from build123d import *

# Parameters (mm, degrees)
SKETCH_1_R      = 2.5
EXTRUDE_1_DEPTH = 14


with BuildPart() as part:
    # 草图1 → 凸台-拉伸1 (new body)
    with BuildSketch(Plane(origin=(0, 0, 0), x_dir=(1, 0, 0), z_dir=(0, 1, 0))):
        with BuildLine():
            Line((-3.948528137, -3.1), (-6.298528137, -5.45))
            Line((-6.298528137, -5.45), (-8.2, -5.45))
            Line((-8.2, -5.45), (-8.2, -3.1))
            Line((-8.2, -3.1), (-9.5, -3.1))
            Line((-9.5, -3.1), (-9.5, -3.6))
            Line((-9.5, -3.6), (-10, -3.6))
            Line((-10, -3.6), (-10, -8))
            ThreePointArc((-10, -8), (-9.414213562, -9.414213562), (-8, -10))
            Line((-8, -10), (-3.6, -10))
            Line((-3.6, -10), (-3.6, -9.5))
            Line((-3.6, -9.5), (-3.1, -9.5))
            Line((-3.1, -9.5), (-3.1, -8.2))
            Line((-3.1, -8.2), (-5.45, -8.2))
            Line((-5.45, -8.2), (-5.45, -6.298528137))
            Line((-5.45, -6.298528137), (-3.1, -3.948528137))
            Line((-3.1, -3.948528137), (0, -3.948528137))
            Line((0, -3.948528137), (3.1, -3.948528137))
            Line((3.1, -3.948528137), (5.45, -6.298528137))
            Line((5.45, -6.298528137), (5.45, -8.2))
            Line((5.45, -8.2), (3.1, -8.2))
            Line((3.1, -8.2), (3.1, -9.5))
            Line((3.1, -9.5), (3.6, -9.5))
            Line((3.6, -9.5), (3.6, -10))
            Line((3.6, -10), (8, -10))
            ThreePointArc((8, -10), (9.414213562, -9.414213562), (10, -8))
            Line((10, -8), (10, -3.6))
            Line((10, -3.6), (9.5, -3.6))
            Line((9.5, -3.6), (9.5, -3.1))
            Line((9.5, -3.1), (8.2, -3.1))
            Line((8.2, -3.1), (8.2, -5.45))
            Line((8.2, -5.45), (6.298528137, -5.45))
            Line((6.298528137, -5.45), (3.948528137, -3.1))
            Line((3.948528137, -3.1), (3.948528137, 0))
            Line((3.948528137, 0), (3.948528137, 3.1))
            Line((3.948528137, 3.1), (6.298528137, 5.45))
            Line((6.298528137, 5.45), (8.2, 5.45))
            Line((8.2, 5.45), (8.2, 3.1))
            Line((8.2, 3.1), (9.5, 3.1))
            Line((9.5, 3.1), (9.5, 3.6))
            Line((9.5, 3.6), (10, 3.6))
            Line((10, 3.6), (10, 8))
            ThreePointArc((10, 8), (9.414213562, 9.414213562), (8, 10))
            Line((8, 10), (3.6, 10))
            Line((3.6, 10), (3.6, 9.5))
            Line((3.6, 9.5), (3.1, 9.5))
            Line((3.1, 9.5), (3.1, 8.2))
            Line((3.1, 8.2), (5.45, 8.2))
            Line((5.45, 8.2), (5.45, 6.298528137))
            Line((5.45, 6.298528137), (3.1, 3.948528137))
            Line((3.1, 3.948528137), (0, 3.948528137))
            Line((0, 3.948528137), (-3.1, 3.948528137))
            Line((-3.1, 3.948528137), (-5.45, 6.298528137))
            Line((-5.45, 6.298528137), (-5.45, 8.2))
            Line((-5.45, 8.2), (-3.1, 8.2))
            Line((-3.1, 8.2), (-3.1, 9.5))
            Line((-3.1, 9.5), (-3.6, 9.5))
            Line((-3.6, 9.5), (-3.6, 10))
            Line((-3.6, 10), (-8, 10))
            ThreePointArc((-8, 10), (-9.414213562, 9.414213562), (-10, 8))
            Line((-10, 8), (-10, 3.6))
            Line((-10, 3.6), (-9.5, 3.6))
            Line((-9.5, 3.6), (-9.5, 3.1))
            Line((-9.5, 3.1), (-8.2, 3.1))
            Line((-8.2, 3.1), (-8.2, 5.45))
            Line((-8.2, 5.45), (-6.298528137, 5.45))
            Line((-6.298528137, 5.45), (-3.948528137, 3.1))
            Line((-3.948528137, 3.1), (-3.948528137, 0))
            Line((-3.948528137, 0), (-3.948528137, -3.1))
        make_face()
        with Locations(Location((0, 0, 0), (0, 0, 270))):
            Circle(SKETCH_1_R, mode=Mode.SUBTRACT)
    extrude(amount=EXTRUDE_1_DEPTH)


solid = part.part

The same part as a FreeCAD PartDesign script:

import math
import FreeCAD as App
import Part
import Sketcher

V = App.Vector
Q = App.Units.Quantity

doc = App.newDocument("Part")
body = doc.addObject("PartDesign::Body", "Body")

sketch1 = doc.addObject("Sketcher::SketchObject", "Sketch")
body.addObject(sketch1)
sketch1.AttachmentSupport = (doc.XZ_Plane, [""])
sketch1.MapMode = "FlatFace"
sketch1.addGeometry([
    Part.LineSegment(V(-3.9, 3.1, 0), V(-6.3, 5.5, 0)),
    Part.LineSegment(V(-6.3, 5.5, 0), V(-8.2, 5.5, 0)),
    Part.LineSegment(V(-8.2, 5.5, 0), V(-8.2, 3.1, 0)),
    Part.LineSegment(V(-8.2, 3.1, 0), V(-9.5, 3.1, 0)),
    Part.LineSegment(V(-9.5, 3.1, 0), V(-9.5, 3.6, 0)),
    Part.LineSegment(V(-9.5, 3.6, 0), V(-10, 3.6, 0)),
    Part.LineSegment(V(-10, 3.6, 0), V(-10, 8, 0)),
    Part.ArcOfCircle(Part.Circle(V(-8, 8, 0), V(0, 0, 1), 2), math.radians(90), math.radians(180)),
    Part.LineSegment(V(-8, 10, 0), V(-3.6, 10, 0)),
    Part.LineSegment(V(-3.6, 10, 0), V(-3.6, 9.5, 0)),
    Part.LineSegment(V(-3.6, 9.5, 0), V(-3.1, 9.5, 0)),
    Part.LineSegment(V(-3.1, 9.5, 0), V(-3.1, 8.2, 0)),
    Part.LineSegment(V(-3.1, 8.2, 0), V(-5.5, 8.2, 0)),
    Part.LineSegment(V(-5.5, 8.2, 0), V(-5.5, 6.3, 0)),
    Part.LineSegment(V(-5.5, 6.3, 0), V(-3.1, 3.9, 0)),
    Part.LineSegment(V(-3.1, 3.9, 0), V(3.1, 3.9, 0)),
    Part.LineSegment(V(3.1, 3.9, 0), V(5.5, 6.3, 0)),
    Part.LineSegment(V(5.5, 6.3, 0), V(5.5, 8.2, 0)),
    Part.LineSegment(V(5.5, 8.2, 0), V(3.1, 8.2, 0)),
    Part.LineSegment(V(3.1, 8.2, 0), V(3.1, 9.5, 0)),
    Part.LineSegment(V(3.1, 9.5, 0), V(3.6, 9.5, 0)),
    Part.LineSegment(V(3.6, 9.5, 0), V(3.6, 10, 0)),
    Part.LineSegment(V(3.6, 10, 0), V(8, 10, 0)),
    Part.ArcOfCircle(Part.Circle(V(8, 8, 0), V(0, 0, 1), 2), math.radians(0), math.radians(90)),
    Part.LineSegment(V(10, 8, 0), V(10, 3.6, 0)),
    Part.LineSegment(V(10, 3.6, 0), V(9.5, 3.6, 0)),
    Part.LineSegment(V(9.5, 3.6, 0), V(9.5, 3.1, 0)),
    Part.LineSegment(V(9.5, 3.1, 0), V(8.2, 3.1, 0)),
    Part.LineSegment(V(8.2, 3.1, 0), V(8.2, 5.5, 0)),
    Part.LineSegment(V(8.2, 5.5, 0), V(6.3, 5.5, 0)),
    Part.LineSegment(V(6.3, 5.5, 0), V(3.9, 3.1, 0)),
    Part.LineSegment(V(3.9, 3.1, 0), V(3.9, -3.1, 0)),
    Part.LineSegment(V(3.9, -3.1, 0), V(6.3, -5.5, 0)),
    Part.LineSegment(V(6.3, -5.5, 0), V(8.2, -5.5, 0)),
    Part.LineSegment(V(8.2, -5.5, 0), V(8.2, -3.1, 0)),
    Part.LineSegment(V(8.2, -3.1, 0), V(9.5, -3.1, 0)),
    Part.LineSegment(V(9.5, -3.1, 0), V(9.5, -3.6, 0)),
    Part.LineSegment(V(9.5, -3.6, 0), V(10, -3.6, 0)),
    Part.LineSegment(V(10, -3.6, 0), V(10, -8, 0)),
    Part.ArcOfCircle(Part.Circle(V(8, -8, 0), V(0, 0, 1), 2), math.radians(-90), math.radians(0)),
    Part.LineSegment(V(8, -10, 0), V(3.6, -10, 0)),
    Part.LineSegment(V(3.6, -10, 0), V(3.6, -9.5, 0)),
    Part.LineSegment(V(3.6, -9.5, 0), V(3.1, -9.5, 0)),
    Part.LineSegment(V(3.1, -9.5, 0), V(3.1, -8.2, 0)),
    Part.LineSegment(V(3.1, -8.2, 0), V(5.5, -8.2, 0)),
    Part.LineSegment(V(5.5, -8.2, 0), V(5.5, -6.3, 0)),
    Part.LineSegment(V(5.5, -6.3, 0), V(3.1, -3.9, 0)),
    Part.LineSegment(V(3.1, -3.9, 0), V(-3.1, -3.9, 0)),
    Part.LineSegment(V(-3.1, -3.9, 0), V(-5.5, -6.3, 0)),
    Part.LineSegment(V(-5.5, -6.3, 0), V(-5.5, -8.2, 0)),
    Part.LineSegment(V(-5.5, -8.2, 0), V(-3.1, -8.2, 0)),
    Part.LineSegment(V(-3.1, -8.2, 0), V(-3.1, -9.5, 0)),
    Part.LineSegment(V(-3.1, -9.5, 0), V(-3.6, -9.5, 0)),
    Part.LineSegment(V(-3.6, -9.5, 0), V(-3.6, -10, 0)),
    Part.LineSegment(V(-3.6, -10, 0), V(-8, -10, 0)),
    Part.ArcOfCircle(Part.Circle(V(-8, -8, 0), V(0, 0, 1), 2), math.radians(-180), math.radians(-90)),
    Part.LineSegment(V(-10, -8, 0), V(-10, -3.6, 0)),
    Part.LineSegment(V(-10, -3.6, 0), V(-9.5, -3.6, 0)),
    Part.LineSegment(V(-9.5, -3.6, 0), V(-9.5, -3.1, 0)),
    Part.LineSegment(V(-9.5, -3.1, 0), V(-8.2, -3.1, 0)),
    Part.LineSegment(V(-8.2, -3.1, 0), V(-8.2, -5.5, 0)),
    Part.LineSegment(V(-8.2, -5.5, 0), V(-6.3, -5.5, 0)),
    Part.LineSegment(V(-6.3, -5.5, 0), V(-3.9, -3.1, 0)),
    Part.LineSegment(V(-3.9, -3.1, 0), V(-3.9, 3.1, 0)),
    Part.Circle(V(0, 0, 0), V(0, 0, 1), 2.5),
], False)
sketch1.addConstraint([
    Sketcher.Constraint("Coincident", 0, 2, 1, 1),
    Sketcher.Constraint("Coincident", 1, 2, 2, 1),
    Sketcher.Constraint("Coincident", 2, 2, 3, 1),
    Sketcher.Constraint("Coincident", 3, 2, 4, 1),
    Sketcher.Constraint("Coincident", 4, 2, 5, 1),
    Sketcher.Constraint("Coincident", 5, 2, 6, 1),
    Sketcher.Constraint("Tangent", 6, 2, 7, 2),
    Sketcher.Constraint("Tangent", 7, 1, 8, 1),
    Sketcher.Constraint("Coincident", 8, 2, 9, 1),
    Sketcher.Constraint("Coincident", 9, 2, 10, 1),
    Sketcher.Constraint("Coincident", 10, 2, 11, 1),
    Sketcher.Constraint("Coincident", 11, 2, 12, 1),
    Sketcher.Constraint("Coincident", 12, 2, 13, 1),
    Sketcher.Constraint("Coincident", 13, 2, 14, 1),
    Sketcher.Constraint("Coincident", 14, 2, 15, 1),
    Sketcher.Constraint("Coincident", 15, 2, 16, 1),
    Sketcher.Constraint("Coincident", 16, 2, 17, 1),
    Sketcher.Constraint("Coincident", 17, 2, 18, 1),
    Sketcher.Constraint("Coincident", 18, 2, 19, 1),
    Sketcher.Constraint("Coincident", 19, 2, 20, 1),
    Sketcher.Constraint("Coincident", 20, 2, 21, 1),
    Sketcher.Constraint("Coincident", 21, 2, 22, 1),
    Sketcher.Constraint("Tangent", 22, 2, 23, 2),
    Sketcher.Constraint("Tangent", 23, 1, 24, 1),
    Sketcher.Constraint("Coincident", 24, 2, 25, 1),
    Sketcher.Constraint("Coincident", 25, 2, 26, 1),
    Sketcher.Constraint("Coincident", 26, 2, 27, 1),
    Sketcher.Constraint("Coincident", 27, 2, 28, 1),
    Sketcher.Constraint("Coincident", 28, 2, 29, 1),
    Sketcher.Constraint("Coincident", 29, 2, 30, 1),
    Sketcher.Constraint("Coincident", 30, 2, 31, 1),
    Sketcher.Constraint("Coincident", 31, 2, 32, 1),
    Sketcher.Constraint("Coincident", 32, 2, 33, 1),
    Sketcher.Constraint("Coincident", 33, 2, 34, 1),
    Sketcher.Constraint("Coincident", 34, 2, 35, 1),
    Sketcher.Constraint("Coincident", 35, 2, 36, 1),
    Sketcher.Constraint("Coincident", 36, 2, 37, 1),
    Sketcher.Constraint("Coincident", 37, 2, 38, 1),
    Sketcher.Constraint("Tangent", 38, 2, 39, 2),
    Sketcher.Constraint("Tangent", 39, 1, 40, 1),
    Sketcher.Constraint("Coincident", 40, 2, 41, 1),
    Sketcher.Constraint("Coincident", 41, 2, 42, 1),
    Sketcher.Constraint("Coincident", 42, 2, 43, 1),
    Sketcher.Constraint("Coincident", 43, 2, 44, 1),
    Sketcher.Constraint("Coincident", 44, 2, 45, 1),
    Sketcher.Constraint("Coincident", 45, 2, 46, 1),
    Sketcher.Constraint("Coincident", 46, 2, 47, 1),
    Sketcher.Constraint("Coincident", 47, 2, 48, 1),
    Sketcher.Constraint("Coincident", 48, 2, 49, 1),
    Sketcher.Constraint("Coincident", 49, 2, 50, 1),
    Sketcher.Constraint("Coincident", 50, 2, 51, 1),
    Sketcher.Constraint("Coincident", 51, 2, 52, 1),
    Sketcher.Constraint("Coincident", 52, 2, 53, 1),
    Sketcher.Constraint("Coincident", 53, 2, 54, 1),
    Sketcher.Constraint("Tangent", 54, 2, 55, 2),
    Sketcher.Constraint("Tangent", 55, 1, 56, 1),
    Sketcher.Constraint("Coincident", 56, 2, 57, 1),
    Sketcher.Constraint("Coincident", 57, 2, 58, 1),
    Sketcher.Constraint("Coincident", 58, 2, 59, 1),
    Sketcher.Constraint("Coincident", 59, 2, 60, 1),
    Sketcher.Constraint("Coincident", 60, 2, 61, 1),
    Sketcher.Constraint("Coincident", 61, 2, 62, 1),
    Sketcher.Constraint("Coincident", 62, 2, 63, 1),
    Sketcher.Constraint("Coincident", 63, 2, 0, 1),
    Sketcher.Constraint("Horizontal", 1),
    Sketcher.Constraint("Vertical", 2),
    Sketcher.Constraint("Horizontal", 3),
    Sketcher.Constraint("Vertical", 4),
    Sketcher.Constraint("Horizontal", 5),
    Sketcher.Constraint("Vertical", 6),
    Sketcher.Constraint("Horizontal", 8),
    Sketcher.Constraint("Vertical", 9),
    Sketcher.Constraint("Horizontal", 10),
    Sketcher.Constraint("Vertical", 11),
    Sketcher.Constraint("Horizontal", 12),
    Sketcher.Constraint("Vertical", 13),
    Sketcher.Constraint("Horizontal", 15),
    Sketcher.Constraint("Vertical", 17),
    Sketcher.Constraint("Horizontal", 18),
    Sketcher.Constraint("Vertical", 19),
    Sketcher.Constraint("Horizontal", 20),
    Sketcher.Constraint("Vertical", 21),
    Sketcher.Constraint("Horizontal", 22),
    Sketcher.Constraint("Vertical", 24),
    Sketcher.Constraint("Horizontal", 25),
    Sketcher.Constraint("Vertical", 26),
    Sketcher.Constraint("Horizontal", 27),
    Sketcher.Constraint("Vertical", 28),
    Sketcher.Constraint("Horizontal", 29),
    Sketcher.Constraint("Vertical", 31),
    Sketcher.Constraint("Horizontal", 33),
    Sketcher.Constraint("Vertical", 34),
    Sketcher.Constraint("Horizontal", 35),
    Sketcher.Constraint("Vertical", 36),
    Sketcher.Constraint("Horizontal", 37),
    Sketcher.Constraint("Vertical", 38),
    Sketcher.Constraint("Horizontal", 40),
    Sketcher.Constraint("Vertical", 41),
    Sketcher.Constraint("Horizontal", 42),
    Sketcher.Constraint("Vertical", 43),
    Sketcher.Constraint("Horizontal", 44),
    Sketcher.Constraint("Vertical", 45),
    Sketcher.Constraint("Horizontal", 47),
    Sketcher.Constraint("Vertical", 49),
    Sketcher.Constraint("Horizontal", 50),
    Sketcher.Constraint("Vertical", 51),
    Sketcher.Constraint("Horizontal", 52),
    Sketcher.Constraint("Vertical", 53),
    Sketcher.Constraint("Horizontal", 54),
    Sketcher.Constraint("Vertical", 56),
    Sketcher.Constraint("Horizontal", 57),
    Sketcher.Constraint("Vertical", 58),
    Sketcher.Constraint("Horizontal", 59),
    Sketcher.Constraint("Vertical", 60),
    Sketcher.Constraint("Horizontal", 61),
    Sketcher.Constraint("Vertical", 63),
    Sketcher.Constraint("Coincident", 64, 3, -1, 1),
    Sketcher.Constraint("Equal", 7, 23),
    Sketcher.Constraint("Equal", 23, 39),
    Sketcher.Constraint("Equal", 39, 55),
    Sketcher.Constraint("Symmetric", 7, 3, 39, 3, -1, 1),
    Sketcher.Constraint("Symmetric", 23, 3, 55, 3, -1, 1),
    Sketcher.Constraint("Symmetric", 0, 2, 32, 2, -1, 1),
    Sketcher.Constraint("Symmetric", 2, 2, 34, 2, -1, 1),
    Sketcher.Constraint("Symmetric", 4, 2, 36, 2, -1, 1),
    Sketcher.Constraint("Symmetric", 9, 2, 41, 2, -1, 1),
    Sketcher.Constraint("Symmetric", 11, 2, 43, 2, -1, 1),
    Sketcher.Constraint("Symmetric", 13, 2, 45, 2, -1, 1),
    Sketcher.Constraint("Symmetric", 14, 2, 46, 2, -1, 1),
    Sketcher.Constraint("Symmetric", 16, 2, 48, 2, -1, 1),
    Sketcher.Constraint("Symmetric", 18, 2, 50, 2, -1, 1),
    Sketcher.Constraint("Symmetric", 20, 2, 52, 2, -1, 1),
    Sketcher.Constraint("Symmetric", 25, 2, 57, 2, -1, 1),
    Sketcher.Constraint("Symmetric", 27, 2, 59, 2, -1, 1),
    Sketcher.Constraint("Symmetric", 29, 2, 61, 2, -1, 1),
    Sketcher.Constraint("Symmetric", 30, 2, 62, 2, -1, 1),
    Sketcher.Constraint("Symmetric", 7, 3, 23, 3, -2),
    Sketcher.Constraint("Symmetric", 13, 2, 16, 2, -2),
    Sketcher.Constraint("Symmetric", 11, 2, 18, 2, -2),
    Sketcher.Constraint("Symmetric", 9, 2, 20, 2, -2),
    Sketcher.Constraint("Symmetric", 4, 2, 25, 2, -2),
    Sketcher.Constraint("Symmetric", 2, 2, 27, 2, -2),
    Sketcher.Constraint("Symmetric", 0, 2, 29, 2, -2),
    Sketcher.Constraint("Parallel", 0, 14),
    Sketcher.Constraint("Perpendicular", 14, 16),
    Sketcher.Constraint("Parallel", 16, 30),
    Sketcher.Constraint("Perpendicular", 30, 32),
    Sketcher.Constraint("Perpendicular", 46, 48),
    Sketcher.Constraint("Horizontal", 27, 2, 30, 2),
    Sketcher.Constraint("Horizontal", 31, 2, 34, 2),
    Sketcher.Constraint("Vertical", 11, 2, 14, 2),
    Sketcher.Constraint("Equal", 5, 10),
    Sketcher.Constraint("Equal", 50, 2),
    Sketcher.Constraint("Equal", 57, 4),
    Sketcher.Constraint("Equal", 54, 6),
    Sketcher.Constraint("Equal", 4, 9),
    Sketcher.Constraint("Equal", 59, 11),
    Sketcher.Constraint("Equal", 61, 13),
    Sketcher.Constraint("Equal", 47, 31),
    Sketcher.Constraint("Diameter", 64, Q("5 mm")),
    Sketcher.Constraint("Radius", 7, Q("2 mm")),
    Sketcher.Constraint("DistanceX", 3, 2, 3, 1, Q("1.3 mm")),
    Sketcher.Constraint("DistanceX", 5, 2, 5, 1, Q("0.5 mm")),
    Sketcher.Constraint("DistanceX", 8, 1, 8, 2, Q("4.4 mm")),
    Sketcher.Constraint("DistanceX", 15, 1, 15, 2, Q("6.2 mm")),
    Sketcher.Constraint("DistanceX", 12, 2, 12, 1, Q("2.35 mm")),
    Sketcher.Constraint("DistanceX", 1, 2, 1, 1, Q("1.901472 mm")),
])
pad1 = doc.addObject("PartDesign::Pad", "Pad")
body.addObject(pad1)
pad1.Profile = sketch1
pad1.Length = 14
pad1.Reversed = True

doc.recompute()
